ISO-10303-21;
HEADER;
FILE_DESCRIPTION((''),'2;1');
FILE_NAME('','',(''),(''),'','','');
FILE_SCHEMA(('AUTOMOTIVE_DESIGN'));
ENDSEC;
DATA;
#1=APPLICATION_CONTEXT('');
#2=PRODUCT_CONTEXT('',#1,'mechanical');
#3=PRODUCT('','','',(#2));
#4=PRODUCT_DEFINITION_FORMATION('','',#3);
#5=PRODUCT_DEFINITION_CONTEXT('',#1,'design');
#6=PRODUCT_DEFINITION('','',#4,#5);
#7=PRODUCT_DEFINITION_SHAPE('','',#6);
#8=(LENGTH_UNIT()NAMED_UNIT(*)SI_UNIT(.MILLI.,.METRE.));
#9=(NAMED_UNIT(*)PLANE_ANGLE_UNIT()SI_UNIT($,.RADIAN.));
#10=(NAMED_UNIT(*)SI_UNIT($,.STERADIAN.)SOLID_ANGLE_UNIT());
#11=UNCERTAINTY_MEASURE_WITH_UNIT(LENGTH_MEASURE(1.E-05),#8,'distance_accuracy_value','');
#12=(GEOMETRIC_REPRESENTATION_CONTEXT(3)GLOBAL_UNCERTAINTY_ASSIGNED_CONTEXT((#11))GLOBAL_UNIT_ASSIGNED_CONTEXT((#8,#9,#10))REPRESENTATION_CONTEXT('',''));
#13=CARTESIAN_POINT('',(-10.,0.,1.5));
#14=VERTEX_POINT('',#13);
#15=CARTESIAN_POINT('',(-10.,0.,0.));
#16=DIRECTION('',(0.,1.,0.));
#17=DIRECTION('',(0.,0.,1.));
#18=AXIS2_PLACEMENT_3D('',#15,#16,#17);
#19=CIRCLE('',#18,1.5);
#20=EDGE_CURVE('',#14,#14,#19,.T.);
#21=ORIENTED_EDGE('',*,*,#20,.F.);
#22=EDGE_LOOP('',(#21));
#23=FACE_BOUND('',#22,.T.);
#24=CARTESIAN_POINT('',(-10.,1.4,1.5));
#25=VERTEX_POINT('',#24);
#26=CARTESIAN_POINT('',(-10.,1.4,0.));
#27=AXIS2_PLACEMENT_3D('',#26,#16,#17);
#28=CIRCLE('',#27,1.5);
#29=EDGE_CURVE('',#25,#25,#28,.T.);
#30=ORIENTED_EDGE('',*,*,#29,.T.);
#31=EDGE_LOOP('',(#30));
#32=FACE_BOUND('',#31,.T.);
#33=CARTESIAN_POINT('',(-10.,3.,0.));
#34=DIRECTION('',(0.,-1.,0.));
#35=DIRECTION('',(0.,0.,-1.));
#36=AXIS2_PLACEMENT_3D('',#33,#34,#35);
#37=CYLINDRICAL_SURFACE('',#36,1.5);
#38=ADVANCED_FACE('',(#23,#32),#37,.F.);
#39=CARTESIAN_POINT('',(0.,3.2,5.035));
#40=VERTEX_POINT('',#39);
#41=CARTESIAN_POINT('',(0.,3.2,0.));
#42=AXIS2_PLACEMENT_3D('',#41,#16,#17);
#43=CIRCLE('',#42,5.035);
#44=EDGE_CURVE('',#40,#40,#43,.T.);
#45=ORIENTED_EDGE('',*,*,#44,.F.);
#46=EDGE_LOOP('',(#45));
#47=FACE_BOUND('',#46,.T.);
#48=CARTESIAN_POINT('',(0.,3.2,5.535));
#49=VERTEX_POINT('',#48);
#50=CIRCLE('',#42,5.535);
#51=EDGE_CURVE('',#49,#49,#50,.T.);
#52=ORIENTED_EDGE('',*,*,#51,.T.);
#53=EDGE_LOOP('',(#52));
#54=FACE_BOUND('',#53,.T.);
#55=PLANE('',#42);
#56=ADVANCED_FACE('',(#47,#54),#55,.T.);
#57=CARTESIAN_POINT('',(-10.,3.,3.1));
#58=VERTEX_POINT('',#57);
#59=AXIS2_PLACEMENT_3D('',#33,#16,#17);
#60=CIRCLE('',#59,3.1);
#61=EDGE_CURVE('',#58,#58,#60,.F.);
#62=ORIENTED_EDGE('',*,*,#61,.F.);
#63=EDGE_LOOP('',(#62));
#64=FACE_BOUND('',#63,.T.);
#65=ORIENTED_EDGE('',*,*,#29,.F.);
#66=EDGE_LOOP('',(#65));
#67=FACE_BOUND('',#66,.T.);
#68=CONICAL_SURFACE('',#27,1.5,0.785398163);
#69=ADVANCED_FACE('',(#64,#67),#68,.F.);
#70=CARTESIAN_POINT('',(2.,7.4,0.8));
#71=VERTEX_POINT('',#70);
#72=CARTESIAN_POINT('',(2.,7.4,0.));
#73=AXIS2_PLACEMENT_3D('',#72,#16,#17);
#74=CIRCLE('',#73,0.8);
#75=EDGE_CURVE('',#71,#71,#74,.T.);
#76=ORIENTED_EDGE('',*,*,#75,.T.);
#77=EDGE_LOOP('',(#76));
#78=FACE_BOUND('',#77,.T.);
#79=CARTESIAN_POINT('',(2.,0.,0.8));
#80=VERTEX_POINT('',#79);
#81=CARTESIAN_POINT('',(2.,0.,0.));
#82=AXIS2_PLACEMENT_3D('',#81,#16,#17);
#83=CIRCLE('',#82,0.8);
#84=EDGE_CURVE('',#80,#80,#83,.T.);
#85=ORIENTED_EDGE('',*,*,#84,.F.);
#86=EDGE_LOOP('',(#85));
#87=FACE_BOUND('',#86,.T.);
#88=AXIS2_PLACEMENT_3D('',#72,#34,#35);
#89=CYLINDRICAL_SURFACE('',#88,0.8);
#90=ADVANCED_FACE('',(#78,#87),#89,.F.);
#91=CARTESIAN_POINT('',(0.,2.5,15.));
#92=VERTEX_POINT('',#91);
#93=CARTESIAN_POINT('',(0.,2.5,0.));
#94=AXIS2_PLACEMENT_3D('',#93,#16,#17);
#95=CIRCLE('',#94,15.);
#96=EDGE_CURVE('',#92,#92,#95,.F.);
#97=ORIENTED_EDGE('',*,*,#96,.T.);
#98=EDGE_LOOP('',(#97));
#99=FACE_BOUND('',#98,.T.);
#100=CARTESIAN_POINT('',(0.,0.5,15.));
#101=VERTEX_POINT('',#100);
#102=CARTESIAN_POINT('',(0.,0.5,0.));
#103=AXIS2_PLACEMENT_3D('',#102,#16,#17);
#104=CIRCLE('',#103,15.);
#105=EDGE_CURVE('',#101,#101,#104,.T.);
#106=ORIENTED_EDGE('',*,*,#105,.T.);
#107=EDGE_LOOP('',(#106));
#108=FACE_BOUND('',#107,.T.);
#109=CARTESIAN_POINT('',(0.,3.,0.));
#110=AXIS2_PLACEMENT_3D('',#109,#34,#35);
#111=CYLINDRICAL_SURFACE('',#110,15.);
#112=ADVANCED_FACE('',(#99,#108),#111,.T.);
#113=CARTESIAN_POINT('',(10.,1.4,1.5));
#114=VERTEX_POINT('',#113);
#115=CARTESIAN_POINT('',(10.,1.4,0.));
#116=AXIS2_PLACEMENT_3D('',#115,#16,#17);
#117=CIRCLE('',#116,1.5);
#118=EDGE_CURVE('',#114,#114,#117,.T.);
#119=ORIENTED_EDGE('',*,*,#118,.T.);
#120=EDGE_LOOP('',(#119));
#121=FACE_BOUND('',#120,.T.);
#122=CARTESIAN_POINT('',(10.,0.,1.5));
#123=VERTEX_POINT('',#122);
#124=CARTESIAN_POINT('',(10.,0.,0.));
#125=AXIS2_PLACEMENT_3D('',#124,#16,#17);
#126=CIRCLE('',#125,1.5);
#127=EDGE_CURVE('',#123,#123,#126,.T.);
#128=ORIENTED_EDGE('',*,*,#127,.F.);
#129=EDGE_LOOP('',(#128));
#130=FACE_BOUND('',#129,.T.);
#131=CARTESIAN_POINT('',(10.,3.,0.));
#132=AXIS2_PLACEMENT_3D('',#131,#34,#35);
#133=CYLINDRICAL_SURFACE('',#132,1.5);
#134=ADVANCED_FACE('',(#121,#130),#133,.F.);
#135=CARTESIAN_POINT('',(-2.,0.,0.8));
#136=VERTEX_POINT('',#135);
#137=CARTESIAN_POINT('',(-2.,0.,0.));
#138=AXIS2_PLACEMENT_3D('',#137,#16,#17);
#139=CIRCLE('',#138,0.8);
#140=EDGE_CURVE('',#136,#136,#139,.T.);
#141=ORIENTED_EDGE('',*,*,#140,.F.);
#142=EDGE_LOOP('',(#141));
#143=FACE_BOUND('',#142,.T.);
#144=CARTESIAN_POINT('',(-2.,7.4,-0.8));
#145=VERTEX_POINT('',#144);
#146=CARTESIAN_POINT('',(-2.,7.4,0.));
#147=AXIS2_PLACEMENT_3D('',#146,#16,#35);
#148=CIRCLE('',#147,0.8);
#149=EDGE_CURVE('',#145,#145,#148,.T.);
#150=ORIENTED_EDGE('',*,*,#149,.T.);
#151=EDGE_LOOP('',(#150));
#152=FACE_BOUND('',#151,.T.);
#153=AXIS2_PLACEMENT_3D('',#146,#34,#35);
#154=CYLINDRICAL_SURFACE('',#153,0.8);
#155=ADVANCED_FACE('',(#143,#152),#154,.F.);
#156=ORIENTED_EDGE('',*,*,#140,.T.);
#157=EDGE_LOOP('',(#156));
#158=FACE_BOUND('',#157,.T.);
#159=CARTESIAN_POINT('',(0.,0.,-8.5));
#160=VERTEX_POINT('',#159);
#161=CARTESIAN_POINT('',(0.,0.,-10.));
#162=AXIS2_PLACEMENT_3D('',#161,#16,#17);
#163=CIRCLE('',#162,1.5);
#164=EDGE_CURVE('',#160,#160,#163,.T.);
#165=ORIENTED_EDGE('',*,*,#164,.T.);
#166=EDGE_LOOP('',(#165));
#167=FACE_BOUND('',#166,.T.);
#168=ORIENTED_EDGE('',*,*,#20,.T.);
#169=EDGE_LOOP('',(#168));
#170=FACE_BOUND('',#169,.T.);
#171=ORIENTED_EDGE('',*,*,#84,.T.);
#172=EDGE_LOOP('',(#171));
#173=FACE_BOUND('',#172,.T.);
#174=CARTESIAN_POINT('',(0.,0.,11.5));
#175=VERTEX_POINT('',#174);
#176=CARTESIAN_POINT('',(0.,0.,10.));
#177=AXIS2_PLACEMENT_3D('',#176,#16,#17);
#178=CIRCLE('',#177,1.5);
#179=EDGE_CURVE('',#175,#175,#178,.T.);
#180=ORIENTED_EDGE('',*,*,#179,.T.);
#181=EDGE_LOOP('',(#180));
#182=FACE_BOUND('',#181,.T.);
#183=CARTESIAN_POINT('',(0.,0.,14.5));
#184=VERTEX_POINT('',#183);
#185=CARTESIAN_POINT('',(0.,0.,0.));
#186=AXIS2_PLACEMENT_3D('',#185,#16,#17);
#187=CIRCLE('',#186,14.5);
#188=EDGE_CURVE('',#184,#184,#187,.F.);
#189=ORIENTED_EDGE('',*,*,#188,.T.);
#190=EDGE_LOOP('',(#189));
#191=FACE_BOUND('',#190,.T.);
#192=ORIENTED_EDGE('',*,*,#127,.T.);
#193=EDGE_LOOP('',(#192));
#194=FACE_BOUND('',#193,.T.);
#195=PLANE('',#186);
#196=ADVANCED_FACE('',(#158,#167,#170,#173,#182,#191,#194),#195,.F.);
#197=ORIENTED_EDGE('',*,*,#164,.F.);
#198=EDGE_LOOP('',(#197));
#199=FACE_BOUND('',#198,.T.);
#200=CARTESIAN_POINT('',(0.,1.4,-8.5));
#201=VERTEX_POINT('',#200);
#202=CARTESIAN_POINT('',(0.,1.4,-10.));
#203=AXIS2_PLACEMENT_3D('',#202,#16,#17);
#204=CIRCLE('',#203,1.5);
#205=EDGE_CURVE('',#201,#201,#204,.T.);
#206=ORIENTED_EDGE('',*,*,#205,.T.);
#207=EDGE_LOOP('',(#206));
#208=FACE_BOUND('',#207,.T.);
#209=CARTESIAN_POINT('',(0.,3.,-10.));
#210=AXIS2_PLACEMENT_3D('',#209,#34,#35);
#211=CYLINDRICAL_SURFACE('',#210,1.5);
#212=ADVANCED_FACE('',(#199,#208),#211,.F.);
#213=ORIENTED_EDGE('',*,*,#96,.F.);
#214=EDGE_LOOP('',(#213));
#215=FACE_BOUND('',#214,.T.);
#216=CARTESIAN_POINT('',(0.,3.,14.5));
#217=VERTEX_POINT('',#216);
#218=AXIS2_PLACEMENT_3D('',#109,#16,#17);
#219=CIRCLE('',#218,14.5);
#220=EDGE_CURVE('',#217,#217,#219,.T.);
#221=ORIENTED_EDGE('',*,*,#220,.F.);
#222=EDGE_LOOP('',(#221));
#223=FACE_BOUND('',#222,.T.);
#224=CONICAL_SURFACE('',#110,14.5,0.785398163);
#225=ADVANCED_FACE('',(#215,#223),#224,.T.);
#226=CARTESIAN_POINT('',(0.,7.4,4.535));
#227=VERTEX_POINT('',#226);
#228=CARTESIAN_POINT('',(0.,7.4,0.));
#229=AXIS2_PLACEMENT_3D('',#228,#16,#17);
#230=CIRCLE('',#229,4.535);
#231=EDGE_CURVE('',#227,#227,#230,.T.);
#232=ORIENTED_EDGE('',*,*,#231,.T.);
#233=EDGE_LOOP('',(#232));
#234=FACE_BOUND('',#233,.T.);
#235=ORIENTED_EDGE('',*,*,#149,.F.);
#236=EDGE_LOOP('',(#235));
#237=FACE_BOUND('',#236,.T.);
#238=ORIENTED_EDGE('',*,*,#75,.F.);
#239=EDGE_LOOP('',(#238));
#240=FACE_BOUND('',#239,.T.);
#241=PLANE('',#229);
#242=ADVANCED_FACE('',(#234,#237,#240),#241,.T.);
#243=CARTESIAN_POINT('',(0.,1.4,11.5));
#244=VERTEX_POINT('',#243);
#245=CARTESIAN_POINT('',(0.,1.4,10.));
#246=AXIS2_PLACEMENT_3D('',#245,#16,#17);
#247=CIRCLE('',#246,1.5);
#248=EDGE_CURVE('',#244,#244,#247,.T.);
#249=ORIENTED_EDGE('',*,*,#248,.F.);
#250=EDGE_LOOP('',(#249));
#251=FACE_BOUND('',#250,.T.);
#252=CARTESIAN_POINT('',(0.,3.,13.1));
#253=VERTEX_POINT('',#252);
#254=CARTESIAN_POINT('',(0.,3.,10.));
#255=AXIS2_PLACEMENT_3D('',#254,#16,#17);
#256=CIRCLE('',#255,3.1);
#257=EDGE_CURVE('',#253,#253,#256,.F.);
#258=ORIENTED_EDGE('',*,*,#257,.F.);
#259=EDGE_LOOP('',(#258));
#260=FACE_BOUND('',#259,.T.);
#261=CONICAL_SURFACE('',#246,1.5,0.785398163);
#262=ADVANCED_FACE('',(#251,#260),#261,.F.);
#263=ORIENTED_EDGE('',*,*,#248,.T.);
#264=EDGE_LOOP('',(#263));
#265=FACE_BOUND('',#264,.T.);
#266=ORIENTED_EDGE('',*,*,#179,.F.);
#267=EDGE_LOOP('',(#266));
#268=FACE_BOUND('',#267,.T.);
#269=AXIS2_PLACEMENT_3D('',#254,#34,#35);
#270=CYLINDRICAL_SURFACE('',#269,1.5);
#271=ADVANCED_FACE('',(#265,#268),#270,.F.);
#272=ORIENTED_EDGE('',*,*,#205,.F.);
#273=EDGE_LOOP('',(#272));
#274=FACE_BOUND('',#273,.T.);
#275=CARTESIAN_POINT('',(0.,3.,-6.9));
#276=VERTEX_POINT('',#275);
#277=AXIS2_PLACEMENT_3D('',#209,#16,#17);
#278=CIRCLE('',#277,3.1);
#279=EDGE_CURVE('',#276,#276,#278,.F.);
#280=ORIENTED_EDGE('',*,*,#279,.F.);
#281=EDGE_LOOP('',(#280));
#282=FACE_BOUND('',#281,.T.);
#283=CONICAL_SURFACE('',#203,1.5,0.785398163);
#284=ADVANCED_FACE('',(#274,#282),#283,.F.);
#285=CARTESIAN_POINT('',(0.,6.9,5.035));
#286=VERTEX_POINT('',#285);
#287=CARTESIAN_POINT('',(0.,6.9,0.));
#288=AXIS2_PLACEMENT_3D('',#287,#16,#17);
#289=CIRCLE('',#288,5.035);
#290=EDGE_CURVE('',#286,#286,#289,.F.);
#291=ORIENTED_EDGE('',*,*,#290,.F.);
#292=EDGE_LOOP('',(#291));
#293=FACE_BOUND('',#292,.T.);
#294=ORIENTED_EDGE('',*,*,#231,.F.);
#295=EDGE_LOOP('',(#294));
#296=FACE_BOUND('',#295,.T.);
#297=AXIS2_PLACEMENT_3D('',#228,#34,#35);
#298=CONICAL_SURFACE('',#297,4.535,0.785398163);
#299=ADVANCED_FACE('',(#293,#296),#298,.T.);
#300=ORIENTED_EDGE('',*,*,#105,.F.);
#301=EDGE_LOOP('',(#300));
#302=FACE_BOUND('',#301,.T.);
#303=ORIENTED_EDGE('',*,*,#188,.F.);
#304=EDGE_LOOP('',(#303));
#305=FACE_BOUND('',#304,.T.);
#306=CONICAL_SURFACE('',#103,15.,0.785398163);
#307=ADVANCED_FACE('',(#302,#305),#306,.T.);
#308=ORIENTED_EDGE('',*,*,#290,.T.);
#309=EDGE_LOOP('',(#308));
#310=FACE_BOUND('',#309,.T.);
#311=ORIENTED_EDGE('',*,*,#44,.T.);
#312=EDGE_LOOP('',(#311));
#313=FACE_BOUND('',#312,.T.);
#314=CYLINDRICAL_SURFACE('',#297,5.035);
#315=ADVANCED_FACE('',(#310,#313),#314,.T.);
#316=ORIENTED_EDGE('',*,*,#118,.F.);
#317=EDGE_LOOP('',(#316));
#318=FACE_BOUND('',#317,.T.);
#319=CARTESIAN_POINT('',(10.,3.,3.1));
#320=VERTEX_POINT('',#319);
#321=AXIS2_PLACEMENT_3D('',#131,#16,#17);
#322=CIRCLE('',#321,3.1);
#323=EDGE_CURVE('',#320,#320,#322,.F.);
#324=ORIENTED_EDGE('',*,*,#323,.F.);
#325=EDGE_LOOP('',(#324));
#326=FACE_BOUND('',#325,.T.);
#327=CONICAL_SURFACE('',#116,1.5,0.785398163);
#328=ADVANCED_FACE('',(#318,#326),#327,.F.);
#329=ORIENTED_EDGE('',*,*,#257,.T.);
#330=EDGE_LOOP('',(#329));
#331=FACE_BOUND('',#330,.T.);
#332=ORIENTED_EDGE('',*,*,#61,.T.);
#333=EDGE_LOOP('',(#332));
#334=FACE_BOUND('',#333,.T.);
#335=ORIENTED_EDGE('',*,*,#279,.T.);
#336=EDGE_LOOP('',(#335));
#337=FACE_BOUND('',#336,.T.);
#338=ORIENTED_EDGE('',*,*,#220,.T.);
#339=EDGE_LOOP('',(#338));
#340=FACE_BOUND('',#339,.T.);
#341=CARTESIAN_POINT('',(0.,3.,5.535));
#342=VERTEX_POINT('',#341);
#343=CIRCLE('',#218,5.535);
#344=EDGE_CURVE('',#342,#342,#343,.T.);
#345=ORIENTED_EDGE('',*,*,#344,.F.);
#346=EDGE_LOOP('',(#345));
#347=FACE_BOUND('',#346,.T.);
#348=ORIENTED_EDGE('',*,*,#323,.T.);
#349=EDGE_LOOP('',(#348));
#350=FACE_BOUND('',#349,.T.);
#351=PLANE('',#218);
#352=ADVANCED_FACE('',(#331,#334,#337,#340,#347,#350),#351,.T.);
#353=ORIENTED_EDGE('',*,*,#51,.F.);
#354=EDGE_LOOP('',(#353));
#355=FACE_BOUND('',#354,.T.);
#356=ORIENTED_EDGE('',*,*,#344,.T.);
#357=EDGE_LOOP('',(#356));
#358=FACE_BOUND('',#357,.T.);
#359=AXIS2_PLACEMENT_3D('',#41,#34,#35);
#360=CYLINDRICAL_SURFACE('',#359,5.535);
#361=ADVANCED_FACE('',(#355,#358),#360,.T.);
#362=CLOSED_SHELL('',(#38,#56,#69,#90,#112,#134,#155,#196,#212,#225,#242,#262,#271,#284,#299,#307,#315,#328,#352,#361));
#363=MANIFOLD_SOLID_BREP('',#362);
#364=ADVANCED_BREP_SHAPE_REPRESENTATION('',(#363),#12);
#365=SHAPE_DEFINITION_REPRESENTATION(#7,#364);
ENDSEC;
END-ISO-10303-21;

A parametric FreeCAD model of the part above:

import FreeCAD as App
import Part
import Sketcher

V = App.Vector


def edges_at(feature, points):
    """Names of the edges that pass closest to the given points."""
    edges = feature.Shape.Edges
    near = lambda p: min(range(len(edges)), key=lambda i: edges[i].distToShape(Part.Vertex(*p))[0])
    return sorted({f"Edge{near(p) + 1}" for p in points})

doc = App.newDocument("Part")
params = doc.addObject("Spreadsheet::Sheet", "Params")
for row, (alias, value) in enumerate([
    ("sketch1_diameter", "30 mm"),
    ("sketch1_diameter2", "3 mm"),
    ("pad1_length", "3 mm"),
    ("sketch2_diameter", "1.6 mm"),
    ("sketch2_diameter2", "10.07 mm"),
    ("pad2_length", "4.4 mm"),
    ("sketch3_diameter", "11.07 mm"),
    ("pad3_length", "0.2 mm"),
    ("chamfer_size", "0.5 mm"),
    ("chamfer2_size", "0.5 mm"),
    ("chamfer3_size", "1.6 mm"),
    ("sketch4_diameter", "1.6 mm"),
    ("pocket1_length", "10 mm"),
], start=1):
    params.set(f"A{row}", alias)
    params.set(f"B{row}", "=" + value)
    params.setAlias(f"B{row}", alias)

body = doc.addObject("PartDesign::Body", "Body")

# Sketch on XZ plane
sketch1 = body.newObject("Sketcher::SketchObject", "Sketch")
sketch1.AttachmentSupport = (doc.getObject("XZ_Plane"), [""])
sketch1.MapMode = "FlatFace"
sketch1.addGeometry([
    Part.Circle(V(0, 0, 0), V(0, 0, 1), 15),  # 0
    Part.Circle(V(0, -10, 0), V(0, 0, 1), 1.5),  # 1
    Part.Circle(V(-10, 0, 0), V(0, 0, 1), 1.5),  # 2
    Part.Circle(V(10, 0, 0), V(0, 0, 1), 1.5),  # 3
    Part.Circle(V(0, 10, 0), V(0, 0, 1), 1.5),  # 4
], False)
sketch1.addConstraint([
    Sketcher.Constraint("Coincident", 0, 3, -1, 1),
    Sketcher.Constraint("Equal", 1, 2),
    Sketcher.Constraint("Equal", 2, 3),
    Sketcher.Constraint("Equal", 3, 4),
    Sketcher.Constraint("Symmetric", 2, 3, 3, 3, -1, 1),
    Sketcher.Constraint("Symmetric", 1, 3, 4, 3, -1, 1),
    Sketcher.Constraint("PointOnObject", 1, 3, -2),
    Sketcher.Constraint("PointOnObject", 2, 3, -1),
    Sketcher.Constraint("Diameter", 0, 30.0),
    Sketcher.Constraint("Diameter", 1, 3.0),
    Sketcher.Constraint("DistanceY", 1, 3, -1, 1, 10.0),
    Sketcher.Constraint("DistanceX", 2, 3, -1, 1, 10.0),
])
sketch1.setExpression("Constraints[8]", "Params.sketch1_diameter")
sketch1.setExpression("Constraints[9]", "Params.sketch1_diameter2")
pad1 = body.newObject("PartDesign::Pad", "Pad")
pad1.Profile = sketch1
pad1.setExpression("Length", "Params.pad1_length")
pad1.Reversed = True

# Sketch on XZ plane
sketch2 = body.newObject("Sketcher::SketchObject", "Sketch001")
sketch2.AttachmentSupport = (doc.getObject("XZ_Plane"), [""])
sketch2.MapMode = "FlatFace"
sketch2.AttachmentOffset = App.Placement(V(0, 0, -3), App.Rotation())
sketch2.addGeometry([
    Part.Circle(V(0, 0, 0), V(0, 0, 1), 5.035),
    Part.Circle(V(-2, 0, 0), V(0, 0, 1), 0.8),
    Part.Circle(V(2, 0, 0), V(0, 0, 1), 0.8),
], False)
sketch2.addConstraint([
    Sketcher.Constraint("Coincident", 0, 3, -1, 1),
    Sketcher.Constraint("Equal", 1, 2),
    Sketcher.Constraint("Symmetric", 1, 3, 2, 3, -1, 1),
    Sketcher.Constraint("PointOnObject", 1, 3, -1),
    Sketcher.Constraint("Diameter", 1, 1.6),
    Sketcher.Constraint("Diameter", 0, 10.07),
    Sketcher.Constraint("DistanceX", 1, 3, -1, 1, 2.0),
])
sketch2.setExpression("Constraints[4]", "Params.sketch2_diameter")
sketch2.setExpression("Constraints[5]", "Params.sketch2_diameter2")
pad2 = body.newObject("PartDesign::Pad", "Pad001")
pad2.Profile = sketch2
pad2.setExpression("Length", "Params.pad2_length")
pad2.Reversed = True

# Sketch on XZ plane
sketch3 = body.newObject("Sketcher::SketchObject", "Sketch002")
sketch3.AttachmentSupport = (doc.getObject("XZ_Plane"), [""])
sketch3.MapMode = "FlatFace"
sketch3.AttachmentOffset = App.Placement(V(0, 0, -3), App.Rotation())
sketch3.addGeometry(Part.Circle(V(0, 0, 0), V(0, 0, 1), 5.535), False)
sketch3.addConstraint([
    Sketcher.Constraint("Coincident", 0, 3, -1, 1),
    Sketcher.Constraint("Diameter", 0, 11.07),
])
sketch3.setExpression("Constraints[1]", "Params.sketch3_diameter")
pad3 = body.newObject("PartDesign::Pad", "Pad002")
pad3.Profile = sketch3
pad3.setExpression("Length", "Params.pad3_length")
pad3.Reversed = True
doc.recompute()

chamfer = body.newObject("PartDesign::Chamfer", "Chamfer")
chamfer.Base = (pad3, edges_at(pad3, [(0, 7.4, -5.035)]))
chamfer.setExpression("Size", "Params.chamfer_size")
doc.recompute()

chamfer2 = body.newObject("PartDesign::Chamfer", "Chamfer001")
chamfer2.Base = (chamfer, edges_at(chamfer, [(0, 0, -15), (0, 3, -15)]))
chamfer2.setExpression("Size", "Params.chamfer2_size")
doc.recompute()

chamfer3 = body.newObject("PartDesign::Chamfer", "Chamfer002")
chamfer3.Base = (chamfer2, edges_at(chamfer2, [
    (0, 3, 8.5),
    (-10, 3, -1.5),
    (0, 3, -11.5),
    (10, 3, -1.5),
]))
chamfer3.setExpression("Size", "Params.chamfer3_size")

# Sketch on XZ plane
sketch4 = body.newObject("Sketcher::SketchObject", "Sketch003")
sketch4.AttachmentSupport = (doc.getObject("XZ_Plane"), [""])
sketch4.MapMode = "FlatFace"
sketch4.AttachmentOffset = App.Placement(V(0, 0, 2.6), App.Rotation())
sketch4.addGeometry([
    Part.Circle(V(2, 0, 0), V(0, 0, 1), 0.8),
    Part.Circle(V(-2, 0, 0), V(0, 0, 1), 0.8),
], False)
sketch4.addConstraint([
    Sketcher.Constraint("Equal", 0, 1),
    Sketcher.Constraint("Symmetric", 0, 3, 1, 3, -1, 1),
    Sketcher.Constraint("PointOnObject", 0, 3, -1),
    Sketcher.Constraint("Diameter", 0, 1.6),
    Sketcher.Constraint("DistanceX", -1, 1, 0, 3, 2.0),
])
sketch4.setExpression("Constraints[3]", "Params.sketch4_diameter")
pocket1 = body.newObject("PartDesign::Pocket", "Pocket")
pocket1.Profile = sketch4
pocket1.setExpression("Length", "Params.pocket1_length")

doc.recompute()
